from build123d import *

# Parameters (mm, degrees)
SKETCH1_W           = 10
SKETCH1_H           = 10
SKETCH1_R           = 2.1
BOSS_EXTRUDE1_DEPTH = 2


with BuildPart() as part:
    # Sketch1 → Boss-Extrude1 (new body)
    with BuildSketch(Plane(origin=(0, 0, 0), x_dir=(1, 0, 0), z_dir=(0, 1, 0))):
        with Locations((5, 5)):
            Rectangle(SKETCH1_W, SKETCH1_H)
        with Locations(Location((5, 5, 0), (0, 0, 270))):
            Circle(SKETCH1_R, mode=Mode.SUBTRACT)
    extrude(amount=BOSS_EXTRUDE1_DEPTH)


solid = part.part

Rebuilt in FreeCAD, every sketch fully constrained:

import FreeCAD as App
import Part
import Sketcher

V = App.Vector
Q = App.Units.Quantity


def add_polygon(sketch, points):
    """Adds a closed chain of lines whose ends are joined by coincident constraints."""
    first, n = sketch.GeometryCount, len(points)
    for a, b in zip(points, points[1:] + points[:1]):
        sketch.addGeometry(Part.LineSegment(App.Vector(*a, 0), App.Vector(*b, 0)), False)
    for i in range(n):
        sketch.addConstraint(Sketcher.Constraint("Coincident", first + i, 2, first + (i + 1) % n, 1))

doc = App.newDocument("Part")
body = doc.addObject("PartDesign::Body", "Body")

# Sketch on XZ plane
sketch1 = body.newObject("Sketcher::SketchObject", "Sketch")
sketch1.AttachmentSupport = (doc.getObject("XZ_Plane"), [""])
sketch1.MapMode = "FlatFace"
add_polygon(sketch1, [(0, -10), (0, 0), (10, 0), (10, -10)])  # lines 0-3
sketch1.addGeometry(Part.Circle(V(5, -5, 0), V(0, 0, 1), 2.1), False)  # 4
sketch1.addConstraint(Sketcher.Constraint("Vertical", 0))
sketch1.addConstraint(Sketcher.Constraint("Horizontal", 1))
sketch1.addConstraint(Sketcher.Constraint("Vertical", 2))
sketch1.addConstraint(Sketcher.Constraint("Horizontal", 3))
sketch1.addConstraint(Sketcher.Constraint("Coincident", 0, 2, -1, 1))
sketch1.addConstraint(Sketcher.Constraint("Equal", 3, 0))
sketch1.addConstraint(Sketcher.Constraint("Diameter", 4, Q("4.2 mm")))
sketch1.addConstraint(Sketcher.Constraint("DistanceX", 1, 1, 1, 2, Q("10 mm")))
sketch1.addConstraint(Sketcher.Constraint("DistanceX", -1, 1, 4, 3, Q("5 mm")))
sketch1.addConstraint(Sketcher.Constraint("DistanceY", 4, 3, -1, 1, Q("5 mm")))
pad1 = body.newObject("PartDesign::Pad", "Pad")
pad1.Profile = sketch1
pad1.Length = 2
pad1.Reversed = True

doc.recompute()
